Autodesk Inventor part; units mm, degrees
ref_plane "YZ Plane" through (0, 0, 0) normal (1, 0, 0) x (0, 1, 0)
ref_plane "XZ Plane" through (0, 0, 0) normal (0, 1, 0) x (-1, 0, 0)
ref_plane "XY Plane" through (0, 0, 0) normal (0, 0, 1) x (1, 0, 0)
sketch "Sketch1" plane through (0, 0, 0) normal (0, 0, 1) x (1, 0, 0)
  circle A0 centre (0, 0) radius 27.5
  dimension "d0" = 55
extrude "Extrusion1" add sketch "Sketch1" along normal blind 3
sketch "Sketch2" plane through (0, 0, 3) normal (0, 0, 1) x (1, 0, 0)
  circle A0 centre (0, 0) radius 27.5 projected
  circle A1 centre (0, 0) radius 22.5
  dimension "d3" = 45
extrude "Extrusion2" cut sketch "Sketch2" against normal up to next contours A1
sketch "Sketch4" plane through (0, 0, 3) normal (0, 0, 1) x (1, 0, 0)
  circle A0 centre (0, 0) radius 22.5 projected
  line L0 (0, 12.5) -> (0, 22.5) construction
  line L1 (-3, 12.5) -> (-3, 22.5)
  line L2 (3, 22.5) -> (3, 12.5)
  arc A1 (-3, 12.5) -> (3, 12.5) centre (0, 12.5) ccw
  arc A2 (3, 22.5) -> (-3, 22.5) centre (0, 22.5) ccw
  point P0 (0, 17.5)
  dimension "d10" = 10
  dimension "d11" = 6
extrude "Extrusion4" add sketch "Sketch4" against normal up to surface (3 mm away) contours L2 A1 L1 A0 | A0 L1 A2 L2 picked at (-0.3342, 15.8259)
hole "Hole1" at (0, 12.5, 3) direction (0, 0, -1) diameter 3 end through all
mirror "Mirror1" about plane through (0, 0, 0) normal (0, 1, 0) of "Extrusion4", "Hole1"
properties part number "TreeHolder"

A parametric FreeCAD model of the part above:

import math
import FreeCAD as App
import Part
import Sketcher
Q = App.Units.Quantity

doc = App.newDocument("Part")
body = doc.addObject("PartDesign::Body", "Body")

# Sketch on XY plane
sketch1 = body.newObject("Sketcher::SketchObject", "Sketch")
sketch1.AttachmentSupport = (doc.getObject("XY_Plane"), [""])
sketch1.MapMode = "FlatFace"
sketch1.addGeometry(Part.Circle(App.Vector(0, 0, 0), App.Vector(0, 0, 1), 27.5), False)
sketch1.addConstraint([
    Sketcher.Constraint("Coincident", 0, 3, -1, 1),
    Sketcher.Constraint("Diameter", 0, Q("55 mm")),
])
pad1 = body.newObject("PartDesign::Pad", "Pad")
pad1.Profile = sketch1
pad1.Length = 3

# Sketch on XY plane
sketch2 = body.newObject("Sketcher::SketchObject", "Sketch001")
sketch2.AttachmentSupport = (doc.getObject("XY_Plane"), [""])
sketch2.MapMode = "FlatFace"
sketch2.AttachmentOffset = App.Placement(App.Vector(0, 0, 3), App.Rotation())
sketch2.addGeometry(Part.Circle(App.Vector(0, 0, 0), App.Vector(0, 0, 1), 22.5), False)
sketch2.addConstraint([
    Sketcher.Constraint("Coincident", 0, 3, -1, 1),
    Sketcher.Constraint("Diameter", 0, Q("45 mm")),
])
pocket1 = body.newObject("PartDesign::Pocket", "Pocket")
pocket1.Profile = sketch2
pocket1.Type = "UpToFirst"

# Sketch on XY plane
sketch3 = body.newObject("Sketcher::SketchObject", "Sketch002")
sketch3.AttachmentSupport = (doc.getObject("XY_Plane"), [""])
sketch3.MapMode = "FlatFace"
sketch3.AttachmentOffset = App.Placement(App.Vector(0, 0, 3), App.Rotation())
sketch3.addGeometry([
    Part.LineSegment(App.Vector(3, 12.5, 0), App.Vector(3, 22.5, 0)),
    Part.ArcOfCircle(Part.Circle(App.Vector(0, 22.5, 0), App.Vector(0, 0, 1), 3), math.radians(0), math.radians(180)),
    Part.LineSegment(App.Vector(-3, 22.5, 0), App.Vector(-3, 12.5, 0)),
    Part.ArcOfCircle(Part.Circle(App.Vector(0, 12.5, 0), App.Vector(0, 0, 1), 3), math.radians(180), math.radians(360)),
], False)
sketch3.addConstraint([
    Sketcher.Constraint("Tangent", 0, 2, 1, 1),
    Sketcher.Constraint("Tangent", 1, 2, 2, 1),
    Sketcher.Constraint("Tangent", 2, 2, 3, 1),
    Sketcher.Constraint("Tangent", 3, 2, 0, 1),
    Sketcher.Constraint("Vertical", 0),
    Sketcher.Constraint("Vertical", 2),
    Sketcher.Constraint("PointOnObject", 1, 3, -2),
    Sketcher.Constraint("Radius", 1, Q("3 mm")),
    Sketcher.Constraint("DistanceY", 0, 1, 0, 2, Q("10 mm")),
    Sketcher.Constraint("DistanceY", -1, 1, 1, 3, Q("22.5 mm")),
])
pad2 = body.newObject("PartDesign::Pad", "Pad001")
pad2.Profile = sketch3
pad2.Length = 3
pad2.Reversed = True

# Sketch on XY plane
sketch4 = body.newObject("Sketcher::SketchObject", "Sketch003")
sketch4.AttachmentSupport = (doc.getObject("XY_Plane"), [""])
sketch4.MapMode = "FlatFace"
sketch4.AttachmentOffset = App.Placement(App.Vector(0, 0, 3), App.Rotation())
sketch4.addGeometry(Part.Circle(App.Vector(0, 12.5, 0), App.Vector(0, 0, 1), 1.5), False)
sketch4.addConstraint([
    Sketcher.Constraint("PointOnObject", 0, 3, -2),
    Sketcher.Constraint("Diameter", 0, Q("3 mm")),
    Sketcher.Constraint("DistanceY", -1, 1, 0, 3, Q("12.5 mm")),
])
doc.recompute()
hole = body.newObject("PartDesign::Hole", "Hole")
hole.Profile = sketch4
hole.ThreadType = "None"
hole.Diameter = 3
hole.DepthType = "ThroughAll"
doc.recompute()

mirrored = body.newObject("PartDesign::Mirrored", "Mirrored")
mirrored.Originals = [pad2, hole]
mirrored.MirrorPlane = (doc.getObject("XZ_Plane"), [""])
body.Tip = mirrored

doc.recompute()
